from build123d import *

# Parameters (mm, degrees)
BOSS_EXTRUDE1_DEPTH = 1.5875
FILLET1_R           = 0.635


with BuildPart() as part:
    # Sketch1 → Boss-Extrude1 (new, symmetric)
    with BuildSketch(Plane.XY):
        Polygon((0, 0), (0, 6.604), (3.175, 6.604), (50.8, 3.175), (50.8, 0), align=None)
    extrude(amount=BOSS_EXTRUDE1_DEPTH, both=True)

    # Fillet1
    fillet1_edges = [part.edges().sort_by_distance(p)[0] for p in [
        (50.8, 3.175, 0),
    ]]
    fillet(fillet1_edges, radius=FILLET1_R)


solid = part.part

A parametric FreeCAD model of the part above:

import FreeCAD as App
import Part
import Sketcher

V = App.Vector
Q = App.Units.Quantity


def edges_at(feature, points):
    """Names of the edges that pass closest to the given points."""
    edges = feature.Shape.Edges
    near = lambda p: min(range(len(edges)), key=lambda i: edges[i].distToShape(Part.Vertex(*p))[0])
    return sorted({f"Edge{near(p) + 1}" for p in points})

doc = App.newDocument("Part")
body = doc.addObject("PartDesign::Body", "Body")

# Sketch on XY plane
sketch1 = doc.addObject("Sketcher::SketchObject", "Sketch")
body.addObject(sketch1)
sketch1.AttachmentSupport = (doc.XY_Plane, [""])
sketch1.MapMode = "FlatFace"
sketch1.addGeometry(Part.LineSegment(V(0, 6.604, 0), V(0, 0, 0)), False)
sketch1.addGeometry(Part.LineSegment(V(0, 0, 0), V(50.8, 0, 0)), False)
sketch1.addGeometry(Part.LineSegment(V(50.8, 0, 0), V(50.8, 3.175, 0)), False)
sketch1.addGeometry(Part.LineSegment(V(50.8, 3.175, 0), V(3.175, 6.604, 0)), False)
sketch1.addGeometry(Part.LineSegment(V(3.175, 6.604, 0), V(0, 6.604, 0)), False)
sketch1.addConstraint(Sketcher.Constraint("Coincident", 0, 2, 1, 1))
sketch1.addConstraint(Sketcher.Constraint("Coincident", 1, 2, 2, 1))
sketch1.addConstraint(Sketcher.Constraint("Coincident", 2, 2, 3, 1))
sketch1.addConstraint(Sketcher.Constraint("Coincident", 3, 2, 4, 1))
sketch1.addConstraint(Sketcher.Constraint("Coincident", 4, 2, 0, 1))
sketch1.addConstraint(Sketcher.Constraint("Vertical", 0))
sketch1.addConstraint(Sketcher.Constraint("Horizontal", 1))
sketch1.addConstraint(Sketcher.Constraint("Vertical", 2))
sketch1.addConstraint(Sketcher.Constraint("Horizontal", 4))
sketch1.addConstraint(Sketcher.Constraint("Coincident", 0, 2, -1, 1))
sketch1.addConstraint(Sketcher.Constraint("Equal", 4, 2))
sketch1.addConstraint(Sketcher.Constraint("DistanceX", 1, 1, 1, 2, Q("2 in")))
sketch1.addConstraint(Sketcher.Constraint("DistanceY", 0, 2, 0, 1, Q("0.26 in")))
sketch1.addConstraint(Sketcher.Constraint("DistanceX", 4, 2, 4, 1, Q("0.125 in")))
pad1 = doc.addObject("PartDesign::Pad", "Pad")
body.addObject(pad1)
pad1.Profile = sketch1
pad1.Length = Q("0.125 in")
pad1.Midplane = True
doc.recompute()

fillet = doc.addObject("PartDesign::Fillet", "Fillet")
body.addObject(fillet)
fillet.Base = (pad1, edges_at(pad1, [(50.8, 3.175, 0)]))
fillet.Radius = Q("0.025 in")

doc.recompute()
